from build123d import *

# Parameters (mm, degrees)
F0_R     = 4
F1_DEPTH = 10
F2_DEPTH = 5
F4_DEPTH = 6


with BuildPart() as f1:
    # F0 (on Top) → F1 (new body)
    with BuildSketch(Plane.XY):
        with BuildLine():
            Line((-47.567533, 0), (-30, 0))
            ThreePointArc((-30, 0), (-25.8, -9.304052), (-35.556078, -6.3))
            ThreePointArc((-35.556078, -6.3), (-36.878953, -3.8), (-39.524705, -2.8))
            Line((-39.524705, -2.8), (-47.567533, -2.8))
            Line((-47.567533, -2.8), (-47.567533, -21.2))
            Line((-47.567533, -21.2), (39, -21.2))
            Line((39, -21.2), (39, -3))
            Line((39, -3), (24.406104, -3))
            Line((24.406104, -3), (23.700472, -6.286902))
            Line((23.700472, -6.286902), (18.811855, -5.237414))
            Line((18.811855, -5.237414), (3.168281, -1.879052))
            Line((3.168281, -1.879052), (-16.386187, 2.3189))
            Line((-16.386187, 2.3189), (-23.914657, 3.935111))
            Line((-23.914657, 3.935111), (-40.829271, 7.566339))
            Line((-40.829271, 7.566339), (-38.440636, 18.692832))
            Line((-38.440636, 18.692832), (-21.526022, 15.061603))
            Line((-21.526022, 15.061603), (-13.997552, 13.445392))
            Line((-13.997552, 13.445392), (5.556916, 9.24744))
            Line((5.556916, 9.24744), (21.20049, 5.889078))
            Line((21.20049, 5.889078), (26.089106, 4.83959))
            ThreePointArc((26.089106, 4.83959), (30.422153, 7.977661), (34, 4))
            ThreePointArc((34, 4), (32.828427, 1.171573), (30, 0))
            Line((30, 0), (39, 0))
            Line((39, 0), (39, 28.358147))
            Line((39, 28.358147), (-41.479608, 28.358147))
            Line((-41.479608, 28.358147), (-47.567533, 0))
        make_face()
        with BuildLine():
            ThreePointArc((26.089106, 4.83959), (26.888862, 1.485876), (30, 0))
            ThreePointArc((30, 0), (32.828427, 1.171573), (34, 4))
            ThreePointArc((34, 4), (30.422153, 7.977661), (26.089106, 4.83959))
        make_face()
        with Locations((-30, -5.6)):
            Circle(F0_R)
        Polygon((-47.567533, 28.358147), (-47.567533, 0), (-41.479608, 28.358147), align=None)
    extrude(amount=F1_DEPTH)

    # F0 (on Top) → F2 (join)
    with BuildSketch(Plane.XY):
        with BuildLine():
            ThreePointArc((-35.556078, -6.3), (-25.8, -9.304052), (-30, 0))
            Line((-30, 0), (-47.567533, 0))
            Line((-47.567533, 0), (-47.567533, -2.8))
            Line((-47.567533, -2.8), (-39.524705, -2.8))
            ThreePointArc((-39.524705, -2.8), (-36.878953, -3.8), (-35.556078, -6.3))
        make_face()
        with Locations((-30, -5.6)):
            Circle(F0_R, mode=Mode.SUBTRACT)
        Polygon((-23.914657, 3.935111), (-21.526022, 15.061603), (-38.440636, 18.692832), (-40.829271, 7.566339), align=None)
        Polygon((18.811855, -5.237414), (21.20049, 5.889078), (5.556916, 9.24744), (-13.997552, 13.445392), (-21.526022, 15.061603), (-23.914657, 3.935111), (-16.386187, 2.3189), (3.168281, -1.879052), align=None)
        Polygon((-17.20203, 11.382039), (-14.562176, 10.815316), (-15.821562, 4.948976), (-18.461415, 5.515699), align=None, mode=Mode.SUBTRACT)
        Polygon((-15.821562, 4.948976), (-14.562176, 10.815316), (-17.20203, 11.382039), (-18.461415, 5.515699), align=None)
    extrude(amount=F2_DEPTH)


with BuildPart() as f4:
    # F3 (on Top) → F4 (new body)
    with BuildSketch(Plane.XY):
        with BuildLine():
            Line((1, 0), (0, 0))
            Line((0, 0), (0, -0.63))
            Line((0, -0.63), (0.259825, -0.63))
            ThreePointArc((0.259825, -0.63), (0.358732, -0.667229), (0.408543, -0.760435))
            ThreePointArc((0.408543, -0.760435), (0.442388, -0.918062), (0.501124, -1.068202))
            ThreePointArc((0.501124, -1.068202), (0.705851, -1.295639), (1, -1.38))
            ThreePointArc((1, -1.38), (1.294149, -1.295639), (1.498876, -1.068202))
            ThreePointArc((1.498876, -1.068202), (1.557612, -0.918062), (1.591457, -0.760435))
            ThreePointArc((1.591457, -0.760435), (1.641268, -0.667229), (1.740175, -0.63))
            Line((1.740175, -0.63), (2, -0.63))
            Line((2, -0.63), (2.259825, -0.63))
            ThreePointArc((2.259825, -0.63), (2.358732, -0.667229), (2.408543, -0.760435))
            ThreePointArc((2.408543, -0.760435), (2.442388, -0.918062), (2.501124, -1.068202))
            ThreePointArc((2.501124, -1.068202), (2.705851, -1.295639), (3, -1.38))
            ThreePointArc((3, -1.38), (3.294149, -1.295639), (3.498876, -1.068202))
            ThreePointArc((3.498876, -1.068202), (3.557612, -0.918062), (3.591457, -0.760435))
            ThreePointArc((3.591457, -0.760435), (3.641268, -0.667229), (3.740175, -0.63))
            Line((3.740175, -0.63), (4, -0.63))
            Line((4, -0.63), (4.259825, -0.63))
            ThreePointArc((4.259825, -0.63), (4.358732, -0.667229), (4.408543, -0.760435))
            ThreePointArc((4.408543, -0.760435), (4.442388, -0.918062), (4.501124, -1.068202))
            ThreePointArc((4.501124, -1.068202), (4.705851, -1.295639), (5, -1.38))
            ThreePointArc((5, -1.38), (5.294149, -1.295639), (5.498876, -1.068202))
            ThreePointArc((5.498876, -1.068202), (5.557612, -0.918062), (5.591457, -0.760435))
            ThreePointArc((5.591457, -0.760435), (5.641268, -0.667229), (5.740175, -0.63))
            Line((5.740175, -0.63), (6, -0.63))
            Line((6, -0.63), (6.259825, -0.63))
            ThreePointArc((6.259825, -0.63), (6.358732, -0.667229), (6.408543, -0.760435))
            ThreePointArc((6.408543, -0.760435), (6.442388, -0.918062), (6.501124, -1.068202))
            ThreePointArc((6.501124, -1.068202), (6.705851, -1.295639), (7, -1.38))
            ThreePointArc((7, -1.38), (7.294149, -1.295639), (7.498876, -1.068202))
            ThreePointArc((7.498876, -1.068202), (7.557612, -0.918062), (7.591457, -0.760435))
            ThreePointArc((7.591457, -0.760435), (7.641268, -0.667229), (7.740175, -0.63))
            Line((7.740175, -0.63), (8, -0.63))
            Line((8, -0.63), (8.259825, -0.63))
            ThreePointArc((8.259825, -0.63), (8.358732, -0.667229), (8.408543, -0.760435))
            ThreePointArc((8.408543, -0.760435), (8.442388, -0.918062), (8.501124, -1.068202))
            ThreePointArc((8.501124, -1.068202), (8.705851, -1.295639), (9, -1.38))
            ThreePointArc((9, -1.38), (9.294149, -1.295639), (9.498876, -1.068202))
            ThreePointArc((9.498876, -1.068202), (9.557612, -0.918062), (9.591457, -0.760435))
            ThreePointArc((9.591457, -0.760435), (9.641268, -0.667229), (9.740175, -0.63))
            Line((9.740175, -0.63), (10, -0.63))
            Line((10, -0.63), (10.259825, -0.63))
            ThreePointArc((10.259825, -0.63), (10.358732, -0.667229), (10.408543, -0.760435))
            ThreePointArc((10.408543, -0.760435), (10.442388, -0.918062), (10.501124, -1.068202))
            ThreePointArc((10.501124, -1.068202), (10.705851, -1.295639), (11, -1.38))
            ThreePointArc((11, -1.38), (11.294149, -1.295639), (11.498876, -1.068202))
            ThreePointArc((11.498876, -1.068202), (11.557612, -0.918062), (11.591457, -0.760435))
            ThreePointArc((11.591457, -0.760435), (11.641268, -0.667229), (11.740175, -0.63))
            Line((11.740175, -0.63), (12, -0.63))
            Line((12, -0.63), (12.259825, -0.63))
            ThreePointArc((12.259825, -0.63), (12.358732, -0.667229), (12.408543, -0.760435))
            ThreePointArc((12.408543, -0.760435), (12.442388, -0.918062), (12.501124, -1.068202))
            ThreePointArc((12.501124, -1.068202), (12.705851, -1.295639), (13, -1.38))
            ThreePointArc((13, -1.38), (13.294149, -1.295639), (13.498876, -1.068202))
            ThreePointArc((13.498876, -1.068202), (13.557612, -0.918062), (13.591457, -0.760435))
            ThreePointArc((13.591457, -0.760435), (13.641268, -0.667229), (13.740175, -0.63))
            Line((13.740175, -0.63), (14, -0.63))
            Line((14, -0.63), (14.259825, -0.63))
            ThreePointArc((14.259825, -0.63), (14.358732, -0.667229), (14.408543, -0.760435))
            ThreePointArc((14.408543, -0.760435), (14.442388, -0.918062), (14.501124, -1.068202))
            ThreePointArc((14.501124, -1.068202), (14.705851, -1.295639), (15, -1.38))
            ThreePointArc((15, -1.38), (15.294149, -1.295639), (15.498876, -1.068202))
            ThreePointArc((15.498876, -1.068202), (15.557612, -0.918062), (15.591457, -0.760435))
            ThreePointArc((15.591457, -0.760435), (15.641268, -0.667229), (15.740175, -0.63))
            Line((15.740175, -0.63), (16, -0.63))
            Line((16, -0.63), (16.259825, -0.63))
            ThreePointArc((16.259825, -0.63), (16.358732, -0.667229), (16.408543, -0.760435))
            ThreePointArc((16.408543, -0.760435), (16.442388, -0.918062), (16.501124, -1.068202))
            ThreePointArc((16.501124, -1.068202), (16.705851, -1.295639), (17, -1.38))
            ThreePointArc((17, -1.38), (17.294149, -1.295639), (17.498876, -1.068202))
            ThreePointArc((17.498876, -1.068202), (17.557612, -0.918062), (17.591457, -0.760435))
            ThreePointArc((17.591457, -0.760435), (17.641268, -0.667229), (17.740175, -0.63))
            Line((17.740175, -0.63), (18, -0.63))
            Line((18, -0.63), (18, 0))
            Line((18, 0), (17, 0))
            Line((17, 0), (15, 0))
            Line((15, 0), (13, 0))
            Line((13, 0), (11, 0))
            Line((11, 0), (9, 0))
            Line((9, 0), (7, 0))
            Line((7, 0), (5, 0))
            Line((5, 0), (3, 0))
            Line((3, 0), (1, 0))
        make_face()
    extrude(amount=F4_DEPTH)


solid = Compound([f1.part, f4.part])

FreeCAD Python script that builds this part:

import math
import FreeCAD as App
import Part
import Sketcher

V = App.Vector


def add_polygon(sketch, points):
    """Adds a closed chain of lines whose ends are joined by coincident constraints."""
    first, n = sketch.GeometryCount, len(points)
    for a, b in zip(points, points[1:] + points[:1]):
        sketch.addGeometry(Part.LineSegment(App.Vector(*a, 0), App.Vector(*b, 0)), False)
    for i in range(n):
        sketch.addConstraint(Sketcher.Constraint("Coincident", first + i, 2, first + (i + 1) % n, 1))

doc = App.newDocument("Part")
body = doc.addObject("PartDesign::Body", "Body")
body.AllowCompound = True

# Sketch on XY plane
sketch1 = body.newObject("Sketcher::SketchObject", "Sketch")
sketch1.AttachmentSupport = (doc.getObject("XY_Plane"), [""])
sketch1.MapMode = "FlatFace"
sketch1.addGeometry(Part.LineSegment(V(-47.6, 0, 0), V(-30, 0, 0)), False)
sketch1.addGeometry(Part.ArcOfCircle(Part.Circle(V(-30, -5.6, 0), V(0, 0, 1), 5.6), math.radians(-173), math.radians(90)), False)
sketch1.addGeometry(Part.ArcOfCircle(Part.Circle(V(-39.5, -6.8, 0), V(0, 0, 1), 4), math.radians(7), math.radians(90)), False)
sketch1.addGeometry(Part.LineSegment(V(-39.5, -2.8, 0), V(-47.6, -2.8, 0)), False)
sketch1.addGeometry(Part.LineSegment(V(-47.6, -2.8, 0), V(-47.6, -21.2, 0)), False)
sketch1.addGeometry(Part.LineSegment(V(-47.6, -21.2, 0), V(39, -21.2, 0)), False)
sketch1.addGeometry(Part.LineSegment(V(39, -21.2, 0), V(39, -3, 0)), False)
sketch1.addGeometry(Part.LineSegment(V(39, -3, 0), V(24.4, -3, 0)), False)
sketch1.addGeometry(Part.LineSegment(V(24.4, -3, 0), V(23.7, -6.3, 0)), False)
sketch1.addGeometry(Part.LineSegment(V(23.7, -6.3, 0), V(18.8, -5.2, 0)), False)
sketch1.addGeometry(Part.LineSegment(V(18.8, -5.2, 0), V(3.2, -1.9, 0)), False)
sketch1.addGeometry(Part.LineSegment(V(3.2, -1.9, 0), V(-16.4, 2.3, 0)), False)
sketch1.addGeometry(Part.LineSegment(V(-16.4, 2.3, 0), V(-23.9, 3.9, 0)), False)
sketch1.addGeometry(Part.LineSegment(V(-23.9, 3.9, 0), V(-40.8, 7.6, 0)), False)
sketch1.addGeometry(Part.LineSegment(V(-40.8, 7.6, 0), V(-38.4, 18.7, 0)), False)
sketch1.addGeometry(Part.LineSegment(V(-38.4, 18.7, 0), V(-21.5, 15.1, 0)), False)
sketch1.addGeometry(Part.LineSegment(V(-21.5, 15.1, 0), V(-14, 13.4, 0)), False)
sketch1.addGeometry(Part.LineSegment(V(-14, 13.4, 0), V(5.6, 9.2, 0)), False)
sketch1.addGeometry(Part.LineSegment(V(5.6, 9.2, 0), V(21.2, 5.9, 0)), False)
sketch1.addGeometry(Part.LineSegment(V(21.2, 5.9, 0), V(26.1, 4.8, 0)), False)
sketch1.addGeometry(Part.ArcOfCircle(Part.Circle(V(30, 4, 0), V(0, 0, 1), 4), math.radians(168), math.radians(270)), False)
sketch1.addGeometry(Part.LineSegment(V(30, 0, 0), V(39, 0, 0)), False)
sketch1.addGeometry(Part.LineSegment(V(39, 0, 0), V(39, 28.4, 0)), False)
sketch1.addGeometry(Part.LineSegment(V(39, 28.4, 0), V(-47.6, 28.4, 0)), False)
sketch1.addGeometry(Part.LineSegment(V(-47.6, 28.4, 0), V(-47.6, 0, 0)), False)
sketch1.addGeometry(Part.Circle(V(-30, -5.6, 0), V(0, 0, 1), 4), False)
sketch1.addConstraint(Sketcher.Constraint("Tangent", 0, 2, 1, 2))
sketch1.addConstraint(Sketcher.Constraint("Tangent", 1, 1, 2, 1))
sketch1.addConstraint(Sketcher.Constraint("Tangent", 2, 2, 3, 1))
sketch1.addConstraint(Sketcher.Constraint("Coincident", 3, 2, 4, 1))
sketch1.addConstraint(Sketcher.Constraint("Coincident", 4, 2, 5, 1))
sketch1.addConstraint(Sketcher.Constraint("Coincident", 5, 2, 6, 1))
sketch1.addConstraint(Sketcher.Constraint("Coincident", 6, 2, 7, 1))
sketch1.addConstraint(Sketcher.Constraint("Coincident", 7, 2, 8, 1))
sketch1.addConstraint(Sketcher.Constraint("Coincident", 8, 2, 9, 1))
sketch1.addConstraint(Sketcher.Constraint("Coincident", 9, 2, 10, 1))
sketch1.addConstraint(Sketcher.Constraint("Coincident", 10, 2, 11, 1))
sketch1.addConstraint(Sketcher.Constraint("Coincident", 11, 2, 12, 1))
sketch1.addConstraint(Sketcher.Constraint("Coincident", 12, 2, 13, 1))
sketch1.addConstraint(Sketcher.Constraint("Coincident", 13, 2, 14, 1))
sketch1.addConstraint(Sketcher.Constraint("Coincident", 14, 2, 15, 1))
sketch1.addConstraint(Sketcher.Constraint("Coincident", 15, 2, 16, 1))
sketch1.addConstraint(Sketcher.Constraint("Coincident", 16, 2, 17, 1))
sketch1.addConstraint(Sketcher.Constraint("Coincident", 17, 2, 18, 1))
sketch1.addConstraint(Sketcher.Constraint("Coincident", 18, 2, 19, 1))
sketch1.addConstraint(Sketcher.Constraint("Coincident", 19, 2, 20, 1))
sketch1.addConstraint(Sketcher.Constraint("Tangent", 20, 2, 21, 1))
sketch1.addConstraint(Sketcher.Constraint("Coincident", 21, 2, 22, 1))
sketch1.addConstraint(Sketcher.Constraint("Coincident", 22, 2, 23, 1))
sketch1.addConstraint(Sketcher.Constraint("Coincident", 23, 2, 24, 1))
sketch1.addConstraint(Sketcher.Constraint("Coincident", 24, 2, 0, 1))
sketch1.addConstraint(Sketcher.Constraint("Horizontal", 0))
sketch1.addConstraint(Sketcher.Constraint("Horizontal", 3))
sketch1.addConstraint(Sketcher.Constraint("Vertical", 4))
sketch1.addConstraint(Sketcher.Constraint("Horizontal", 5))
sketch1.addConstraint(Sketcher.Constraint("Vertical", 6))
sketch1.addConstraint(Sketcher.Constraint("Horizontal", 7))
sketch1.addConstraint(Sketcher.Constraint("Horizontal", 21))
sketch1.addConstraint(Sketcher.Constraint("Vertical", 22))
sketch1.addConstraint(Sketcher.Constraint("Horizontal", 23))
sketch1.addConstraint(Sketcher.Constraint("Vertical", 24))
sketch1.addConstraint(Sketcher.Constraint("Coincident", 25, 3, 1, 3))
sketch1.addConstraint(Sketcher.Constraint("Equal", 20, 25))
sketch1.addConstraint(Sketcher.Constraint("Symmetric", 0, 2, 20, 2, -1, 1))
sketch1.addConstraint(Sketcher.Constraint("PointOnObject", 0, 2, -1))
sketch1.addConstraint(Sketcher.Constraint("Perpendicular", 8, 9))
sketch1.addConstraint(Sketcher.Constraint("Parallel", 9, 10))
sketch1.addConstraint(Sketcher.Constraint("Parallel", 10, 11))
sketch1.addConstraint(Sketcher.Constraint("Parallel", 11, 12))
sketch1.addConstraint(Sketcher.Constraint("Parallel", 12, 13))
sketch1.addConstraint(Sketcher.Constraint("Perpendicular", 13, 14))
sketch1.addConstraint(Sketcher.Constraint("Perpendicular", 14, 15))
sketch1.addConstraint(Sketcher.Constraint("Parallel", 15, 16))
sketch1.addConstraint(Sketcher.Constraint("Parallel", 16, 17))
sketch1.addConstraint(Sketcher.Constraint("Parallel", 17, 18))
sketch1.addConstraint(Sketcher.Constraint("Parallel", 18, 19))
sketch1.addConstraint(Sketcher.Constraint("Vertical", 6, 2, 21, 2))
sketch1.addConstraint(Sketcher.Constraint("Vertical", 4, 2, 23, 2))
sketch1.addConstraint(Sketcher.Constraint("Equal", 13, 15))
sketch1.addConstraint(Sketcher.Constraint("Equal", 12, 16))
sketch1.addConstraint(Sketcher.Constraint("Equal", 11, 17))
sketch1.addConstraint(Sketcher.Constraint("Equal", 10, 18))
sketch1.addConstraint(Sketcher.Constraint("Equal", 9, 19))
sketch1.addConstraint(Sketcher.Constraint("Diameter", 25, 8.0))
sketch1.addConstraint(Sketcher.Constraint("Radius", 2, 3.999999))
sketch1.addConstraint(Sketcher.Constraint("Radius", 1, 5.6))
sketch1.addConstraint(Sketcher.Constraint("DistanceX", 21, 1, 21, 2, 9.0))
sketch1.addConstraint(Sketcher.Constraint("Distance", 9, 5.0))
sketch1.addConstraint(Sketcher.Constraint("Distance", 10, 16.0))
sketch1.addConstraint(Sketcher.Constraint("Distance", 11, 20.0))
sketch1.addConstraint(Sketcher.Constraint("DistanceY", 4, 2, 4, 1, 18.4))
sketch1.addConstraint(Sketcher.Constraint("DistanceY", 6, 1, 6, 2, 18.2))
sketch1.addConstraint(Sketcher.Constraint("DistanceX", 1, 3, -1, 1, 30.0))
sketch1.addConstraint(Sketcher.Constraint("DistanceY", 6, 2, -1, 1, 3.0))
sketch1.addConstraint(Sketcher.Constraint("Distance", 12, 7.7))
sketch1.addConstraint(Sketcher.Constraint("Distance", 13, 17.3))
sketch1.addConstraint(Sketcher.Constraint("Distance", 14, 11.380001))
sketch1.addConstraint(Sketcher.Constraint("DistanceY", -1, 1, 11, 2, 2.3189))
sketch1.addConstraint(Sketcher.Constraint("Distance", 8, 3.361791))
sketch1.addConstraint(Sketcher.Constraint("DistanceX", 0, 1, 0, 2, 17.567533))
sketch1.addConstraint(Sketcher.Constraint("DistanceY", 22, 1, 22, 2, 28.358147))
pad1 = body.newObject("PartDesign::Pad", "Pad")
pad1.Profile = sketch1
pad1.Length = 10

# Sketch on XY plane
sketch2 = body.newObject("Sketcher::SketchObject", "Sketch001")
sketch2.AttachmentSupport = (doc.getObject("XY_Plane"), [""])
sketch2.MapMode = "FlatFace"
sketch2.addGeometry(Part.ArcOfCircle(Part.Circle(V(-30, -5.6, 0), V(0, 0, 1), 5.6), math.radians(-173), math.radians(90)), False)  # 0
sketch2.addGeometry(Part.LineSegment(V(-30, 0, 0), V(-47.6, 0, 0)), False)  # 1
sketch2.addGeometry(Part.LineSegment(V(-47.6, 0, 0), V(-47.6, -2.8, 0)), False)  # 2
sketch2.addGeometry(Part.LineSegment(V(-47.6, -2.8, 0), V(-39.5, -2.8, 0)), False)  # 3
sketch2.addGeometry(Part.ArcOfCircle(Part.Circle(V(-39.5, -6.8, 0), V(0, 0, 1), 4), math.radians(7), math.radians(90)), False)  # 4
sketch2.addGeometry(Part.Circle(V(-30, -5.6, 0), V(0, 0, 1), 4), False)  # 5
add_polygon(sketch2, [(-21.5, 15.1), (-38.4, 18.7), (-40.8, 7.6), (-23.9, 3.9), (-16.4, 2.3), (3.2, -1.9), (18.8, -5.2), (21.2, 5.9), (5.6, 9.2), (-14, 13.4)])  # lines 6-15
sketch2.addConstraint(Sketcher.Constraint("Tangent", 0, 2, 1, 1))
sketch2.addConstraint(Sketcher.Constraint("Coincident", 1, 2, 2, 1))
sketch2.addConstraint(Sketcher.Constraint("Coincident", 2, 2, 3, 1))
sketch2.addConstraint(Sketcher.Constraint("Tangent", 3, 2, 4, 2))
sketch2.addConstraint(Sketcher.Constraint("Tangent", 4, 1, 0, 1))
sketch2.addConstraint(Sketcher.Constraint("Horizontal", 1))
sketch2.addConstraint(Sketcher.Constraint("Vertical", 2))
sketch2.addConstraint(Sketcher.Constraint("Horizontal", 3))
sketch2.addConstraint(Sketcher.Constraint("Coincident", 5, 3, 0, 3))
sketch2.addConstraint(Sketcher.Constraint("Equal", 4, 5))
sketch2.addConstraint(Sketcher.Constraint("PointOnObject", 0, 2, -1))
sketch2.addConstraint(Sketcher.Constraint("Perpendicular", 6, 7))
sketch2.addConstraint(Sketcher.Constraint("Perpendicular", 7, 8))
sketch2.addConstraint(Sketcher.Constraint("Parallel", 8, 9))
sketch2.addConstraint(Sketcher.Constraint("Parallel", 9, 10))
sketch2.addConstraint(Sketcher.Constraint("Parallel", 10, 11))
sketch2.addConstraint(Sketcher.Constraint("Perpendicular", 11, 12))
sketch2.addConstraint(Sketcher.Constraint("Perpendicular", 12, 13))
sketch2.addConstraint(Sketcher.Constraint("Parallel", 13, 14))
sketch2.addConstraint(Sketcher.Constraint("Parallel", 14, 15))
sketch2.addConstraint(Sketcher.Constraint("Equal", 6, 8))
sketch2.addConstraint(Sketcher.Constraint("Equal", 11, 13))
sketch2.addConstraint(Sketcher.Constraint("Equal", 10, 14))
sketch2.addConstraint(Sketcher.Constraint("Diameter", 5, 8.0))
sketch2.addConstraint(Sketcher.Constraint("Radius", 0, 5.6))
sketch2.addConstraint(Sketcher.Constraint("Distance", 10, 20.0))
sketch2.addConstraint(Sketcher.Constraint("Distance", 11, 16.0))
sketch2.addConstraint(Sketcher.Constraint("DistanceY", 2, 2, 2, 1, 2.8))
sketch2.addConstraint(Sketcher.Constraint("DistanceX", 0, 3, -1, 1, 30.0))
sketch2.addConstraint(Sketcher.Constraint("Distance", 6, 17.3))
sketch2.addConstraint(Sketcher.Constraint("Distance", 9, 7.7))
sketch2.addConstraint(Sketcher.Constraint("Distance", 7, 11.380001))
sketch2.addConstraint(Sketcher.Constraint("DistanceY", -1, 1, 9, 2, 2.3189))
sketch2.addConstraint(Sketcher.Constraint("DistanceX", 1, 2, 1, 1, 17.567533))
sketch2.addConstraint(Sketcher.Constraint("DistanceY", -1, 1, 6, 2, 18.692832))
sketch2.addConstraint(Sketcher.Constraint("DistanceX", 7, 2, -1, 1, 40.829271))
pad2 = body.newObject("PartDesign::Pad", "Pad001")
pad2.Profile = sketch2
pad2.Length = 5
body2 = doc.addObject("PartDesign::Body", "Body001")

# Sketch on XY plane
sketch3 = body2.newObject("Sketcher::SketchObject", "Sketch002")
sketch3.AttachmentSupport = (doc.getObject("XY_Plane001"), [""])
sketch3.MapMode = "FlatFace"
sketch3.addGeometry(Part.LineSegment(V(0, 0, 0), V(0, -0.63, 0)), False)
sketch3.addGeometry(Part.LineSegment(V(0, -0.63, 0), V(0.26, -0.63, 0)), False)
sketch3.addGeometry(Part.ArcOfCircle(Part.Circle(V(0.26, -0.78, 0), V(0, 0, 1), 0.15), math.radians(7), math.radians(90)), False)
sketch3.addGeometry(Part.ArcOfCircle(Part.Circle(V(1.4, -0.63, 0), V(0, 0, 1), 1), math.radians(-172.51), math.radians(-154.01)), False)
sketch3.addGeometry(Part.ArcOfCircle(Part.Circle(V(1, -0.83, 0), V(0, 0, 1), 0.55), math.radians(-154), math.radians(-90)), False)
sketch3.addGeometry(Part.ArcOfCircle(Part.Circle(V(1, -0.83, 0), V(0, 0, 1), 0.55), math.radians(-90), math.radians(-26)), False)
sketch3.addGeometry(Part.ArcOfCircle(Part.Circle(V(0.6, -0.63, 0), V(0, 0, 1), 1), math.radians(-25.99), math.radians(-7.49)), False)
sketch3.addGeometry(Part.ArcOfCircle(Part.Circle(V(1.74, -0.78, 0), V(0, 0, 1), 0.15), math.radians(90), math.radians(173)), False)
sketch3.addGeometry(Part.LineSegment(V(1.74, -0.63, 0), V(2.26, -0.63, 0)), False)
sketch3.addGeometry(Part.ArcOfCircle(Part.Circle(V(2.26, -0.78, 0), V(0, 0, 1), 0.15), math.radians(7), math.radians(90)), False)
sketch3.addGeometry(Part.ArcOfCircle(Part.Circle(V(3.4, -0.63, 0), V(0, 0, 1), 1), math.radians(-172.51), math.radians(-154.01)), False)
sketch3.addGeometry(Part.ArcOfCircle(Part.Circle(V(3, -0.83, 0), V(0, 0, 1), 0.55), math.radians(-154), math.radians(-90)), False)
sketch3.addGeometry(Part.ArcOfCircle(Part.Circle(V(3, -0.83, 0), V(0, 0, 1), 0.55), math.radians(-90), math.radians(-26)), False)
sketch3.addGeometry(Part.ArcOfCircle(Part.Circle(V(2.6, -0.63, 0), V(0, 0, 1), 1), math.radians(-25.99), math.radians(-7.49)), False)
sketch3.addGeometry(Part.ArcOfCircle(Part.Circle(V(3.74, -0.78, 0), V(0, 0, 1), 0.15), math.radians(90), math.radians(173)), False)
sketch3.addGeometry(Part.LineSegment(V(3.74, -0.63, 0), V(4.26, -0.63, 0)), False)
sketch3.addGeometry(Part.ArcOfCircle(Part.Circle(V(4.26, -0.78, 0), V(0, 0, 1), 0.15), math.radians(7), math.radians(90)), False)
sketch3.addGeometry(Part.ArcOfCircle(Part.Circle(V(5.4, -0.63, 0), V(0, 0, 1), 1), math.radians(-172.51), math.radians(-154.01)), False)
sketch3.addGeometry(Part.ArcOfCircle(Part.Circle(V(5, -0.83, 0), V(0, 0, 1), 0.55), math.radians(-154), math.radians(-90)), False)
sketch3.addGeometry(Part.ArcOfCircle(Part.Circle(V(5, -0.83, 0), V(0, 0, 1), 0.55), math.radians(-90), math.radians(-26)), False)
sketch3.addGeometry(Part.ArcOfCircle(Part.Circle(V(4.6, -0.63, 0), V(0, 0, 1), 1), math.radians(-25.99), math.radians(-7.49)), False)
sketch3.addGeometry(Part.ArcOfCircle(Part.Circle(V(5.74, -0.78, 0), V(0, 0, 1), 0.15), math.radians(90), math.radians(173)), False)
sketch3.addGeometry(Part.LineSegment(V(5.74, -0.63, 0), V(6.26, -0.63, 0)), False)
sketch3.addGeometry(Part.ArcOfCircle(Part.Circle(V(6.26, -0.78, 0), V(0, 0, 1), 0.15), math.radians(7), math.radians(90)), False)
sketch3.addGeometry(Part.ArcOfCircle(Part.Circle(V(7.4, -0.63, 0), V(0, 0, 1), 1), math.radians(-172.51), math.radians(-154.01)), False)
sketch3.addGeometry(Part.ArcOfCircle(Part.Circle(V(7, -0.83, 0), V(0, 0, 1), 0.55), math.radians(-154), math.radians(-90)), False)
sketch3.addGeometry(Part.ArcOfCircle(Part.Circle(V(7, -0.83, 0), V(0, 0, 1), 0.55), math.radians(-90), math.radians(-26)), False)
sketch3.addGeometry(Part.ArcOfCircle(Part.Circle(V(6.6, -0.63, 0), V(0, 0, 1), 1), math.radians(-25.99), math.radians(-7.49)), False)
sketch3.addGeometry(Part.ArcOfCircle(Part.Circle(V(7.74, -0.78, 0), V(0, 0, 1), 0.15), math.radians(90), math.radians(173)), False)
sketch3.addGeometry(Part.LineSegment(V(7.74, -0.63, 0), V(8.26, -0.63, 0)), False)
sketch3.addGeometry(Part.ArcOfCircle(Part.Circle(V(8.26, -0.78, 0), V(0, 0, 1), 0.15), math.radians(7), math.radians(90)), False)
sketch3.addGeometry(Part.ArcOfCircle(Part.Circle(V(9.4, -0.63, 0), V(0, 0, 1), 1), math.radians(-172.51), math.radians(-154.01)), False)
sketch3.addGeometry(Part.ArcOfCircle(Part.Circle(V(9, -0.83, 0), V(0, 0, 1), 0.55), math.radians(-154), math.radians(-90)), False)
sketch3.addGeometry(Part.ArcOfCircle(Part.Circle(V(9, -0.83, 0), V(0, 0, 1), 0.55), math.radians(-90), math.radians(-26)), False)
sketch3.addGeometry(Part.ArcOfCircle(Part.Circle(V(8.6, -0.63, 0), V(0, 0, 1), 1), math.radians(-25.99), math.radians(-7.49)), False)
sketch3.addGeometry(Part.ArcOfCircle(Part.Circle(V(9.74, -0.78, 0), V(0, 0, 1), 0.15), math.radians(90), math.radians(173)), False)
sketch3.addGeometry(Part.LineSegment(V(9.74, -0.63, 0), V(10.26, -0.63, 0)), False)
sketch3.addGeometry(Part.ArcOfCircle(Part.Circle(V(10.26, -0.78, 0), V(0, 0, 1), 0.15), math.radians(7), math.radians(90)), False)
sketch3.addGeometry(Part.ArcOfCircle(Part.Circle(V(11.4, -0.63, 0), V(0, 0, 1), 1), math.radians(-172.51), math.radians(-154.01)), False)
sketch3.addGeometry(Part.ArcOfCircle(Part.Circle(V(11, -0.83, 0), V(0, 0, 1), 0.55), math.radians(-154), math.radians(-90)), False)
sketch3.addGeometry(Part.ArcOfCircle(Part.Circle(V(11, -0.83, 0), V(0, 0, 1), 0.55), math.radians(-90), math.radians(-26)), False)
sketch3.addGeometry(Part.ArcOfCircle(Part.Circle(V(10.6, -0.63, 0), V(0, 0, 1), 1), math.radians(-25.99), math.radians(-7.49)), False)
sketch3.addGeometry(Part.ArcOfCircle(Part.Circle(V(11.74, -0.78, 0), V(0, 0, 1), 0.15), math.radians(90), math.radians(173)), False)
sketch3.addGeometry(Part.LineSegment(V(11.74, -0.63, 0), V(12.26, -0.63, 0)), False)
sketch3.addGeometry(Part.ArcOfCircle(Part.Circle(V(12.26, -0.78, 0), V(0, 0, 1), 0.15), math.radians(7), math.radians(90)), False)
sketch3.addGeometry(Part.ArcOfCircle(Part.Circle(V(13.4, -0.63, 0), V(0, 0, 1), 1), math.radians(-172.51), math.radians(-154.01)), False)
sketch3.addGeometry(Part.ArcOfCircle(Part.Circle(V(13, -0.83, 0), V(0, 0, 1), 0.55), math.radians(-154), math.radians(-90)), False)
sketch3.addGeometry(Part.ArcOfCircle(Part.Circle(V(13, -0.83, 0), V(0, 0, 1), 0.55), math.radians(-90), math.radians(-26)), False)
sketch3.addGeometry(Part.ArcOfCircle(Part.Circle(V(12.6, -0.63, 0), V(0, 0, 1), 1), math.radians(-25.99), math.radians(-7.49)), False)
sketch3.addGeometry(Part.ArcOfCircle(Part.Circle(V(13.74, -0.78, 0), V(0, 0, 1), 0.15), math.radians(90), math.radians(173)), False)
sketch3.addGeometry(Part.LineSegment(V(13.74, -0.63, 0), V(14.26, -0.63, 0)), False)
sketch3.addGeometry(Part.ArcOfCircle(Part.Circle(V(14.26, -0.78, 0), V(0, 0, 1), 0.15), math.radians(7), math.radians(90)), False)
sketch3.addGeometry(Part.ArcOfCircle(Part.Circle(V(15.4, -0.63, 0), V(0, 0, 1), 1), math.radians(-172.51), math.radians(-154.01)), False)
sketch3.addGeometry(Part.ArcOfCircle(Part.Circle(V(15, -0.83, 0), V(0, 0, 1), 0.55), math.radians(-154), math.radians(-90)), False)
sketch3.addGeometry(Part.ArcOfCircle(Part.Circle(V(15, -0.83, 0), V(0, 0, 1), 0.55), math.radians(-90), math.radians(-26)), False)
sketch3.addGeometry(Part.ArcOfCircle(Part.Circle(V(14.6, -0.63, 0), V(0, 0, 1), 1), math.radians(-25.99), math.radians(-7.49)), False)
sketch3.addGeometry(Part.ArcOfCircle(Part.Circle(V(15.74, -0.78, 0), V(0, 0, 1), 0.15), math.radians(90), math.radians(173)), False)
sketch3.addGeometry(Part.LineSegment(V(15.74, -0.63, 0), V(16.26, -0.63, 0)), False)
sketch3.addGeometry(Part.ArcOfCircle(Part.Circle(V(16.26, -0.78, 0), V(0, 0, 1), 0.15), math.radians(7), math.radians(90)), False)
sketch3.addGeometry(Part.ArcOfCircle(Part.Circle(V(17.4, -0.63, 0), V(0, 0, 1), 1), math.radians(-172.51), math.radians(-154.01)), False)
sketch3.addGeometry(Part.ArcOfCircle(Part.Circle(V(17, -0.83, 0), V(0, 0, 1), 0.55), math.radians(-154), math.radians(-90)), False)
sketch3.addGeometry(Part.ArcOfCircle(Part.Circle(V(17, -0.83, 0), V(0, 0, 1), 0.55), math.radians(-90), math.radians(-26)), False)
sketch3.addGeometry(Part.ArcOfCircle(Part.Circle(V(16.6, -0.63, 0), V(0, 0, 1), 1), math.radians(-25.99), math.radians(-7.49)), False)
sketch3.addGeometry(Part.ArcOfCircle(Part.Circle(V(17.74, -0.78, 0), V(0, 0, 1), 0.15), math.radians(90), math.radians(173)), False)
sketch3.addGeometry(Part.LineSegment(V(17.74, -0.63, 0), V(18, -0.63, 0)), False)
sketch3.addGeometry(Part.LineSegment(V(18, -0.63, 0), V(18, 0, 0)), False)
sketch3.addGeometry(Part.LineSegment(V(18, 0, 0), V(0, 0, 0)), False)
sketch3.addConstraint(Sketcher.Constraint("Coincident", 0, 2, 1, 1))
sketch3.addConstraint(Sketcher.Constraint("Coincident", 1, 2, 2, 2))
sketch3.addConstraint(Sketcher.Constraint("Tangent", 2, 1, 3, 1))
sketch3.addConstraint(Sketcher.Constraint("Coincident", 3, 2, 4, 1))
sketch3.addConstraint(Sketcher.Constraint("Tangent", 4, 2, 5, 1))
sketch3.addConstraint(Sketcher.Constraint("Coincident", 5, 2, 6, 1))
sketch3.addConstraint(Sketcher.Constraint("Tangent", 6, 2, 7, 2))
sketch3.addConstraint(Sketcher.Constraint("Coincident", 7, 1, 8, 1))
sketch3.addConstraint(Sketcher.Constraint("Coincident", 8, 2, 9, 2))
sketch3.addConstraint(Sketcher.Constraint("Tangent", 9, 1, 10, 1))
sketch3.addConstraint(Sketcher.Constraint("Coincident", 10, 2, 11, 1))
sketch3.addConstraint(Sketcher.Constraint("Tangent", 11, 2, 12, 1))
sketch3.addConstraint(Sketcher.Constraint("Coincident", 12, 2, 13, 1))
sketch3.addConstraint(Sketcher.Constraint("Tangent", 13, 2, 14, 2))
sketch3.addConstraint(Sketcher.Constraint("Coincident", 14, 1, 15, 1))
sketch3.addConstraint(Sketcher.Constraint("Coincident", 15, 2, 16, 2))
sketch3.addConstraint(Sketcher.Constraint("Tangent", 16, 1, 17, 1))
sketch3.addConstraint(Sketcher.Constraint("Coincident", 17, 2, 18, 1))
sketch3.addConstraint(Sketcher.Constraint("Tangent", 18, 2, 19, 1))
sketch3.addConstraint(Sketcher.Constraint("Coincident", 19, 2, 20, 1))
sketch3.addConstraint(Sketcher.Constraint("Tangent", 20, 2, 21, 2))
sketch3.addConstraint(Sketcher.Constraint("Coincident", 21, 1, 22, 1))
sketch3.addConstraint(Sketcher.Constraint("Coincident", 22, 2, 23, 2))
sketch3.addConstraint(Sketcher.Constraint("Tangent", 23, 1, 24, 1))
sketch3.addConstraint(Sketcher.Constraint("Coincident", 24, 2, 25, 1))
sketch3.addConstraint(Sketcher.Constraint("Tangent", 25, 2, 26, 1))
sketch3.addConstraint(Sketcher.Constraint("Coincident", 26, 2, 27, 1))
sketch3.addConstraint(Sketcher.Constraint("Tangent", 27, 2, 28, 2))
sketch3.addConstraint(Sketcher.Constraint("Coincident", 28, 1, 29, 1))
sketch3.addConstraint(Sketcher.Constraint("Coincident", 29, 2, 30, 2))
sketch3.addConstraint(Sketcher.Constraint("Tangent", 30, 1, 31, 1))
sketch3.addConstraint(Sketcher.Constraint("Coincident", 31, 2, 32, 1))
sketch3.addConstraint(Sketcher.Constraint("Tangent", 32, 2, 33, 1))
sketch3.addConstraint(Sketcher.Constraint("Coincident", 33, 2, 34, 1))
sketch3.addConstraint(Sketcher.Constraint("Tangent", 34, 2, 35, 2))
sketch3.addConstraint(Sketcher.Constraint("Coincident", 35, 1, 36, 1))
sketch3.addConstraint(Sketcher.Constraint("Coincident", 36, 2, 37, 2))
sketch3.addConstraint(Sketcher.Constraint("Tangent", 37, 1, 38, 1))
sketch3.addConstraint(Sketcher.Constraint("Coincident", 38, 2, 39, 1))
sketch3.addConstraint(Sketcher.Constraint("Tangent", 39, 2, 40, 1))
sketch3.addConstraint(Sketcher.Constraint("Coincident", 40, 2, 41, 1))
sketch3.addConstraint(Sketcher.Constraint("Tangent", 41, 2, 42, 2))
sketch3.addConstraint(Sketcher.Constraint("Coincident", 42, 1, 43, 1))
sketch3.addConstraint(Sketcher.Constraint("Coincident", 43, 2, 44, 2))
sketch3.addConstraint(Sketcher.Constraint("Tangent", 44, 1, 45, 1))
sketch3.addConstraint(Sketcher.Constraint("Coincident", 45, 2, 46, 1))
sketch3.addConstraint(Sketcher.Constraint("Tangent", 46, 2, 47, 1))
sketch3.addConstraint(Sketcher.Constraint("Coincident", 47, 2, 48, 1))
sketch3.addConstraint(Sketcher.Constraint("Tangent", 48, 2, 49, 2))
sketch3.addConstraint(Sketcher.Constraint("Coincident", 49, 1, 50, 1))
sketch3.addConstraint(Sketcher.Constraint("Coincident", 50, 2, 51, 2))
sketch3.addConstraint(Sketcher.Constraint("Tangent", 51, 1, 52, 1))
sketch3.addConstraint(Sketcher.Constraint("Coincident", 52, 2, 53, 1))
sketch3.addConstraint(Sketcher.Constraint("Tangent", 53, 2, 54, 1))
sketch3.addConstraint(Sketcher.Constraint("Coincident", 54, 2, 55, 1))
sketch3.addConstraint(Sketcher.Constraint("Tangent", 55, 2, 56, 2))
sketch3.addConstraint(Sketcher.Constraint("Coincident", 56, 1, 57, 1))
sketch3.addConstraint(Sketcher.Constraint("Coincident", 57, 2, 58, 2))
sketch3.addConstraint(Sketcher.Constraint("Tangent", 58, 1, 59, 1))
sketch3.addConstraint(Sketcher.Constraint("Coincident", 59, 2, 60, 1))
sketch3.addConstraint(Sketcher.Constraint("Tangent", 60, 2, 61, 1))
sketch3.addConstraint(Sketcher.Constraint("Coincident", 61, 2, 62, 1))
sketch3.addConstraint(Sketcher.Constraint("Tangent", 62, 2, 63, 2))
sketch3.addConstraint(Sketcher.Constraint("Coincident", 63, 1, 64, 1))
sketch3.addConstraint(Sketcher.Constraint("Coincident", 64, 2, 65, 1))
sketch3.addConstraint(Sketcher.Constraint("Coincident", 65, 2, 66, 1))
sketch3.addConstraint(Sketcher.Constraint("Coincident", 66, 2, 0, 1))
sketch3.addConstraint(Sketcher.Constraint("Vertical", 0))
sketch3.addConstraint(Sketcher.Constraint("Horizontal", 1))
sketch3.addConstraint(Sketcher.Constraint("Horizontal", 8))
sketch3.addConstraint(Sketcher.Constraint("Horizontal", 15))
sketch3.addConstraint(Sketcher.Constraint("Horizontal", 22))
sketch3.addConstraint(Sketcher.Constraint("Horizontal", 29))
sketch3.addConstraint(Sketcher.Constraint("Horizontal", 36))
sketch3.addConstraint(Sketcher.Constraint("Horizontal", 43))
sketch3.addConstraint(Sketcher.Constraint("Horizontal", 50))
sketch3.addConstraint(Sketcher.Constraint("Horizontal", 57))
sketch3.addConstraint(Sketcher.Constraint("Horizontal", 64))
sketch3.addConstraint(Sketcher.Constraint("Vertical", 65))
sketch3.addConstraint(Sketcher.Constraint("Horizontal", 66))
sketch3.addConstraint(Sketcher.Constraint("Coincident", 66, 2, -1, 1))
sketch3.addConstraint(Sketcher.Constraint("Equal", 4, 5))
sketch3.addConstraint(Sketcher.Constraint("Equal", 3, 6))
sketch3.addConstraint(Sketcher.Constraint("Equal", 2, 7))
sketch3.addConstraint(Sketcher.Constraint("Equal", 7, 9))
sketch3.addConstraint(Sketcher.Constraint("Equal", 6, 10))
sketch3.addConstraint(Sketcher.Constraint("Equal", 5, 11))
sketch3.addConstraint(Sketcher.Constraint("Equal", 11, 12))
sketch3.addConstraint(Sketcher.Constraint("Equal", 10, 13))
sketch3.addConstraint(Sketcher.Constraint("Equal", 9, 14))
sketch3.addConstraint(Sketcher.Constraint("Equal", 14, 16))
sketch3.addConstraint(Sketcher.Constraint("Equal", 13, 17))
sketch3.addConstraint(Sketcher.Constraint("Equal", 12, 18))
sketch3.addConstraint(Sketcher.Constraint("Equal", 18, 19))
sketch3.addConstraint(Sketcher.Constraint("Equal", 17, 20))
sketch3.addConstraint(Sketcher.Constraint("Equal", 16, 21))
sketch3.addConstraint(Sketcher.Constraint("Equal", 21, 23))
sketch3.addConstraint(Sketcher.Constraint("Equal", 20, 24))
sketch3.addConstraint(Sketcher.Constraint("Equal", 19, 25))
sketch3.addConstraint(Sketcher.Constraint("Equal", 25, 26))
sketch3.addConstraint(Sketcher.Constraint("Equal", 24, 27))
sketch3.addConstraint(Sketcher.Constraint("Equal", 23, 28))
sketch3.addConstraint(Sketcher.Constraint("Equal", 28, 30))
sketch3.addConstraint(Sketcher.Constraint("Equal", 27, 31))
sketch3.addConstraint(Sketcher.Constraint("Equal", 26, 32))
sketch3.addConstraint(Sketcher.Constraint("Equal", 32, 33))
sketch3.addConstraint(Sketcher.Constraint("Equal", 31, 34))
sketch3.addConstraint(Sketcher.Constraint("Equal", 30, 35))
sketch3.addConstraint(Sketcher.Constraint("Equal", 35, 37))
sketch3.addConstraint(Sketcher.Constraint("Equal", 34, 38))
sketch3.addConstraint(Sketcher.Constraint("Equal", 33, 39))
sketch3.addConstraint(Sketcher.Constraint("Equal", 39, 40))
sketch3.addConstraint(Sketcher.Constraint("Equal", 38, 41))
sketch3.addConstraint(Sketcher.Constraint("Equal", 37, 42))
sketch3.addConstraint(Sketcher.Constraint("Equal", 42, 44))
sketch3.addConstraint(Sketcher.Constraint("Equal", 41, 45))
sketch3.addConstraint(Sketcher.Constraint("Equal", 40, 46))
sketch3.addConstraint(Sketcher.Constraint("Equal", 46, 47))
sketch3.addConstraint(Sketcher.Constraint("Equal", 45, 48))
sketch3.addConstraint(Sketcher.Constraint("Equal", 44, 49))
sketch3.addConstraint(Sketcher.Constraint("Equal", 49, 51))
sketch3.addConstraint(Sketcher.Constraint("Equal", 48, 52))
sketch3.addConstraint(Sketcher.Constraint("Equal", 47, 53))
sketch3.addConstraint(Sketcher.Constraint("Equal", 53, 54))
sketch3.addConstraint(Sketcher.Constraint("Equal", 52, 55))
sketch3.addConstraint(Sketcher.Constraint("Equal", 51, 56))
sketch3.addConstraint(Sketcher.Constraint("Equal", 56, 58))
sketch3.addConstraint(Sketcher.Constraint("Equal", 55, 59))
sketch3.addConstraint(Sketcher.Constraint("Equal", 54, 60))
sketch3.addConstraint(Sketcher.Constraint("Equal", 60, 61))
sketch3.addConstraint(Sketcher.Constraint("Equal", 59, 62))
sketch3.addConstraint(Sketcher.Constraint("Equal", 58, 63))
sketch3.addConstraint(Sketcher.Constraint("Horizontal", 3, 3, 6, 3))
sketch3.addConstraint(Sketcher.Constraint("Horizontal", 2, 3, 7, 3))
sketch3.addConstraint(Sketcher.Constraint("Horizontal", 6, 3, 10, 3))
sketch3.addConstraint(Sketcher.Constraint("Horizontal", 5, 3, 11, 3))
sketch3.addConstraint(Sketcher.Constraint("Horizontal", 10, 3, 13, 3))
sketch3.addConstraint(Sketcher.Constraint("Horizontal", 9, 3, 14, 3))
sketch3.addConstraint(Sketcher.Constraint("Horizontal", 13, 3, 17, 3))
sketch3.addConstraint(Sketcher.Constraint("Horizontal", 12, 3, 18, 3))
sketch3.addConstraint(Sketcher.Constraint("Horizontal", 17, 3, 20, 3))
sketch3.addConstraint(Sketcher.Constraint("Horizontal", 16, 3, 21, 3))
sketch3.addConstraint(Sketcher.Constraint("Horizontal", 20, 3, 24, 3))
sketch3.addConstraint(Sketcher.Constraint("Horizontal", 19, 3, 25, 3))
sketch3.addConstraint(Sketcher.Constraint("Horizontal", 24, 3, 27, 3))
sketch3.addConstraint(Sketcher.Constraint("Horizontal", 23, 3, 28, 3))
sketch3.addConstraint(Sketcher.Constraint("Horizontal", 27, 3, 31, 3))
sketch3.addConstraint(Sketcher.Constraint("Horizontal", 26, 3, 32, 3))
sketch3.addConstraint(Sketcher.Constraint("Horizontal", 31, 3, 34, 3))
sketch3.addConstraint(Sketcher.Constraint("Horizontal", 30, 3, 35, 3))
sketch3.addConstraint(Sketcher.Constraint("Horizontal", 34, 3, 38, 3))
sketch3.addConstraint(Sketcher.Constraint("Horizontal", 33, 3, 39, 3))
sketch3.addConstraint(Sketcher.Constraint("Horizontal", 38, 3, 41, 3))
sketch3.addConstraint(Sketcher.Constraint("Horizontal", 37, 3, 42, 3))
sketch3.addConstraint(Sketcher.Constraint("Horizontal", 41, 3, 45, 3))
sketch3.addConstraint(Sketcher.Constraint("Horizontal", 40, 3, 46, 3))
sketch3.addConstraint(Sketcher.Constraint("Horizontal", 45, 3, 48, 3))
sketch3.addConstraint(Sketcher.Constraint("Horizontal", 44, 3, 49, 3))
sketch3.addConstraint(Sketcher.Constraint("Horizontal", 48, 3, 52, 3))
sketch3.addConstraint(Sketcher.Constraint("Horizontal", 47, 3, 53, 3))
sketch3.addConstraint(Sketcher.Constraint("Horizontal", 52, 3, 55, 3))
sketch3.addConstraint(Sketcher.Constraint("Horizontal", 51, 3, 56, 3))
sketch3.addConstraint(Sketcher.Constraint("Horizontal", 55, 3, 59, 3))
sketch3.addConstraint(Sketcher.Constraint("Horizontal", 54, 3, 60, 3))
sketch3.addConstraint(Sketcher.Constraint("Horizontal", 59, 3, 62, 3))
sketch3.addConstraint(Sketcher.Constraint("Horizontal", 58, 3, 63, 3))
sketch3.addConstraint(Sketcher.Constraint("Horizontal", 3, 2, 5, 2))
sketch3.addConstraint(Sketcher.Constraint("Horizontal", 5, 2, 10, 2))
sketch3.addConstraint(Sketcher.Constraint("Horizontal", 10, 2, 12, 2))
sketch3.addConstraint(Sketcher.Constraint("Horizontal", 12, 2, 17, 2))
sketch3.addConstraint(Sketcher.Constraint("Horizontal", 17, 2, 19, 2))
sketch3.addConstraint(Sketcher.Constraint("Horizontal", 19, 2, 24, 2))
sketch3.addConstraint(Sketcher.Constraint("Horizontal", 24, 2, 26, 2))
sketch3.addConstraint(Sketcher.Constraint("Horizontal", 26, 2, 31, 2))
sketch3.addConstraint(Sketcher.Constraint("Horizontal", 31, 2, 33, 2))
sketch3.addConstraint(Sketcher.Constraint("Horizontal", 33, 2, 38, 2))
sketch3.addConstraint(Sketcher.Constraint("Horizontal", 38, 2, 40, 2))
sketch3.addConstraint(Sketcher.Constraint("Horizontal", 40, 2, 45, 2))
sketch3.addConstraint(Sketcher.Constraint("Horizontal", 45, 2, 47, 2))
sketch3.addConstraint(Sketcher.Constraint("Horizontal", 47, 2, 52, 2))
sketch3.addConstraint(Sketcher.Constraint("Horizontal", 52, 2, 54, 2))
sketch3.addConstraint(Sketcher.Constraint("Horizontal", 54, 2, 59, 2))
sketch3.addConstraint(Sketcher.Constraint("Horizontal", 59, 2, 61, 2))
sketch3.addConstraint(Sketcher.Constraint("Vertical", 2, 3, 1, 2))
sketch3.addConstraint(Sketcher.Constraint("Vertical", 5, 3, 4, 2))
sketch3.addConstraint(Sketcher.Constraint("Vertical", 9, 3, 8, 2))
sketch3.addConstraint(Sketcher.Constraint("Vertical", 12, 3, 11, 2))
sketch3.addConstraint(Sketcher.Constraint("Vertical", 16, 3, 15, 2))
sketch3.addConstraint(Sketcher.Constraint("Vertical", 19, 3, 18, 2))
sketch3.addConstraint(Sketcher.Constraint("Vertical", 23, 3, 22, 2))
sketch3.addConstraint(Sketcher.Constraint("Vertical", 26, 3, 25, 2))
sketch3.addConstraint(Sketcher.Constraint("Vertical", 30, 3, 29, 2))
sketch3.addConstraint(Sketcher.Constraint("Vertical", 33, 3, 32, 2))
sketch3.addConstraint(Sketcher.Constraint("Vertical", 37, 3, 36, 2))
sketch3.addConstraint(Sketcher.Constraint("Vertical", 40, 3, 39, 2))
sketch3.addConstraint(Sketcher.Constraint("Vertical", 44, 3, 43, 2))
sketch3.addConstraint(Sketcher.Constraint("Vertical", 47, 3, 46, 2))
sketch3.addConstraint(Sketcher.Constraint("Vertical", 51, 3, 50, 2))
sketch3.addConstraint(Sketcher.Constraint("Vertical", 54, 3, 53, 2))
sketch3.addConstraint(Sketcher.Constraint("Vertical", 58, 3, 57, 2))
sketch3.addConstraint(Sketcher.Constraint("Vertical", 61, 3, 60, 2))
sketch3.addConstraint(Sketcher.Constraint("Equal", 8, 15))
sketch3.addConstraint(Sketcher.Constraint("Equal", 15, 22))
sketch3.addConstraint(Sketcher.Constraint("Equal", 22, 29))
sketch3.addConstraint(Sketcher.Constraint("Equal", 29, 36))
sketch3.addConstraint(Sketcher.Constraint("Equal", 36, 43))
sketch3.addConstraint(Sketcher.Constraint("Equal", 43, 50))
sketch3.addConstraint(Sketcher.Constraint("Equal", 50, 57))
sketch3.addConstraint(Sketcher.Constraint("Equal", 1, 64))
sketch3.addConstraint(Sketcher.Constraint("DistanceX", 66, 2, 66, 1, 18.0))
sketch3.addConstraint(Sketcher.Constraint("Radius", 2, 0.15))
sketch3.addConstraint(Sketcher.Constraint("DistanceX", -1, 1, 4, 3, 1.0))
sketch3.addConstraint(Sketcher.Constraint("DistanceX", -1, 1, 11, 3, 3.0))
sketch3.addConstraint(Sketcher.Constraint("DistanceX", -1, 1, 18, 3, 5.0))
sketch3.addConstraint(Sketcher.Constraint("DistanceX", -1, 1, 25, 3, 7.0))
sketch3.addConstraint(Sketcher.Constraint("DistanceX", -1, 1, 32, 3, 9.0))
sketch3.addConstraint(Sketcher.Constraint("DistanceX", -1, 1, 39, 3, 11.0))
sketch3.addConstraint(Sketcher.Constraint("DistanceX", -1, 1, 46, 3, 13.0))
sketch3.addConstraint(Sketcher.Constraint("DistanceX", -1, 1, 53, 3, 15.0))
sketch3.addConstraint(Sketcher.Constraint("DistanceX", -1, 1, 60, 3, 17.0))
sketch3.addConstraint(Sketcher.Constraint("Radius", 4, 0.555))
sketch3.addConstraint(Sketcher.Constraint("DistanceY", 0, 2, 0, 1, 0.63))
sketch3.addConstraint(Sketcher.Constraint("DistanceY", 4, 2, -1, 1, 1.38))
sketch3.addConstraint(Sketcher.Constraint("Radius", 3, 0.99997))
sketch3.addConstraint(Sketcher.Constraint("DistanceX", 8, 1, 8, 2, 0.51965))
sketch3.addConstraint(Sketcher.Constraint("DistanceX", 1, 1, 1, 2, 0.259825))
sketch3.addConstraint(Sketcher.Constraint("DistanceX", -1, 1, 3, 2, 0.501124))
pad3 = body2.newObject("PartDesign::Pad", "Pad002")
pad3.Profile = sketch3
pad3.Length = 6

doc.recompute()
